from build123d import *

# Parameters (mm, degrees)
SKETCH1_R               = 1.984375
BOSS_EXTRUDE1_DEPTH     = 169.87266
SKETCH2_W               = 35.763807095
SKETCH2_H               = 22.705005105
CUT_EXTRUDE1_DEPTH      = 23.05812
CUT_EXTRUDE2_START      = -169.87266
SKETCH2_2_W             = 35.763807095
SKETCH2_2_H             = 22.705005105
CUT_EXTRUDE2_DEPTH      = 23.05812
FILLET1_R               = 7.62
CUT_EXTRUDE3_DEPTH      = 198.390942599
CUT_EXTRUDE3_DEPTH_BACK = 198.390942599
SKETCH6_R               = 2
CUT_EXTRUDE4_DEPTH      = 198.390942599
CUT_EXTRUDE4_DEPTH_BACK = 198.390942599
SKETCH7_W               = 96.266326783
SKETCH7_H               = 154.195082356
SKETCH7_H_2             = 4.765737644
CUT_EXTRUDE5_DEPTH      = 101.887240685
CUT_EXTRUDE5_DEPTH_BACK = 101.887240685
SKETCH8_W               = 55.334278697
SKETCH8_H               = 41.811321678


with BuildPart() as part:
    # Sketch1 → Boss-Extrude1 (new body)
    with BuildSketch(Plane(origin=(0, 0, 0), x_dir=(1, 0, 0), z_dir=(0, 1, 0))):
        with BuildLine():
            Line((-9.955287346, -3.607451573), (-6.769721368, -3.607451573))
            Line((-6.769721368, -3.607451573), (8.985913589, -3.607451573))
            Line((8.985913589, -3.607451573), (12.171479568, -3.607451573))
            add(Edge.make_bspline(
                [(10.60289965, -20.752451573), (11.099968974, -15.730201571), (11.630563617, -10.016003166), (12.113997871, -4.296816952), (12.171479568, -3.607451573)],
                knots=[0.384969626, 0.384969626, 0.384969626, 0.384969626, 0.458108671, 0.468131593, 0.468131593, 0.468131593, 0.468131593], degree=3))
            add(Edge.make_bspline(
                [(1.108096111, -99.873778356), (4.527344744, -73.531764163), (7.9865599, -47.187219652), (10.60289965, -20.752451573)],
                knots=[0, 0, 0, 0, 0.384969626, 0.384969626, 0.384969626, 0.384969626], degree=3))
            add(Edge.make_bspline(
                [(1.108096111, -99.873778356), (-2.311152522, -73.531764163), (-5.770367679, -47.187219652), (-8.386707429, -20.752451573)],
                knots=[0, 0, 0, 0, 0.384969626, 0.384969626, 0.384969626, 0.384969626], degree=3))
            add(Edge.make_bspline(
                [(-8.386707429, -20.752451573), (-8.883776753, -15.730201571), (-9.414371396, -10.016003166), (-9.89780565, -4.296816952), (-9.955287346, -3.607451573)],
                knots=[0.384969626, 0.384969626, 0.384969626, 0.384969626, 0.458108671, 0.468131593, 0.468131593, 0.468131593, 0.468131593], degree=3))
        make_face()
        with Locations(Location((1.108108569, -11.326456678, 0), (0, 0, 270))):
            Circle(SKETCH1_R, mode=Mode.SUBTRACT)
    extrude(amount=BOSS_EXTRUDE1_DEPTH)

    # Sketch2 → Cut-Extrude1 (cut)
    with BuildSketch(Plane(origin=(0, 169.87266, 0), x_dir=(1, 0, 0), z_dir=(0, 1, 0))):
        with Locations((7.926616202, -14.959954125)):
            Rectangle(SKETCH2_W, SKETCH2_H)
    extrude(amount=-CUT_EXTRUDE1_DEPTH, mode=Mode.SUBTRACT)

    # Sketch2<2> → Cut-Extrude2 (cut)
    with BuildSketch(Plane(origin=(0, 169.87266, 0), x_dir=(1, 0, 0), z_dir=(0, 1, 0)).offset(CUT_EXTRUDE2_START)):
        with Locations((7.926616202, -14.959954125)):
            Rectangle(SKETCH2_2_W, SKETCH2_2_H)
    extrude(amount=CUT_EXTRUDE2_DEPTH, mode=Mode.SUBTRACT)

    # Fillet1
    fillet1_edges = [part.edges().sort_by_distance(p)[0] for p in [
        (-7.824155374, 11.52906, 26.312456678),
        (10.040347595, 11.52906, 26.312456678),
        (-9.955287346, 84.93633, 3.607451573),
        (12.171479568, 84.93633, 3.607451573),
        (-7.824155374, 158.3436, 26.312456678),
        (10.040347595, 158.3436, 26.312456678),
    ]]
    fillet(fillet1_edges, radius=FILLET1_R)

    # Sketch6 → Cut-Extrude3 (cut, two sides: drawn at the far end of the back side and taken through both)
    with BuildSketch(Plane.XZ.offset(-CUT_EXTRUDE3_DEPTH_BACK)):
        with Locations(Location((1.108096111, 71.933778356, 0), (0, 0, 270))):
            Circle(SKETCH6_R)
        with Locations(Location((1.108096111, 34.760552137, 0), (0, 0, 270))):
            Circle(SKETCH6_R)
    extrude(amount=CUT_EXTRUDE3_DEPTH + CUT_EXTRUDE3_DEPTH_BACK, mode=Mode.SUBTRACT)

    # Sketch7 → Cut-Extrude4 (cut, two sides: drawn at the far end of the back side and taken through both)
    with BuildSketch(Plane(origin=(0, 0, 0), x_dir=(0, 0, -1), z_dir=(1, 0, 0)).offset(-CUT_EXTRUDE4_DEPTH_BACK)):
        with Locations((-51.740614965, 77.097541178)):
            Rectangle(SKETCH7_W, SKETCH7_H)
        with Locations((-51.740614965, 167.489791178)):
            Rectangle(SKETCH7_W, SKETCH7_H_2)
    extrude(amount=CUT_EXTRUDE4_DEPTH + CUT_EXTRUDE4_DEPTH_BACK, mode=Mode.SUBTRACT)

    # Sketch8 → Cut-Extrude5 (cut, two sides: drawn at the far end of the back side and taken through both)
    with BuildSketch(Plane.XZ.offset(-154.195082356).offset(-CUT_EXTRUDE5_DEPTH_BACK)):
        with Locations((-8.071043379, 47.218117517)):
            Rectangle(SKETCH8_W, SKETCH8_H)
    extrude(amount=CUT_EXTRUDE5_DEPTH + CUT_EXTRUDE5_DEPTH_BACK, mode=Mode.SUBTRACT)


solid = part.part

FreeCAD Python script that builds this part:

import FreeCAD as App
import Part
import Sketcher

V = App.Vector
Q = App.Units.Quantity


def edges_at(feature, points):
    """Names of the edges that pass closest to the given points."""
    edges = feature.Shape.Edges
    near = lambda p: min(range(len(edges)), key=lambda i: edges[i].distToShape(Part.Vertex(*p))[0])
    return sorted({f"Edge{near(p) + 1}" for p in points})


def add_polygon(sketch, points):
    """Adds a closed chain of lines whose ends are joined by coincident constraints."""
    first, n = sketch.GeometryCount, len(points)
    for a, b in zip(points, points[1:] + points[:1]):
        sketch.addGeometry(Part.LineSegment(App.Vector(*a, 0), App.Vector(*b, 0)), False)
    for i in range(n):
        sketch.addConstraint(Sketcher.Constraint("Coincident", first + i, 2, first + (i + 1) % n, 1))

doc = App.newDocument("Part")
body = doc.addObject("PartDesign::Body", "Body")

# Sketch on XZ plane
sketch1 = body.newObject("Sketcher::SketchObject", "Sketch")
sketch1.AttachmentSupport = (doc.getObject("XZ_Plane"), [""])
sketch1.MapMode = "FlatFace"
sketch1.addGeometry(Part.LineSegment(V(12.17148, 3.607452, 0), V(-9.955287, 3.607452, 0)), False)
sketch1.addGeometry(Part.BSplineCurve([V(-8.386707, 20.752452, 0), V(-8.883777, 15.730202, 0), V(-9.414371, 10.016003, 0), V(-9.897806, 4.296817, 0), V(-9.955287, 3.607452, 0)], [4, 1, 4], [0.384969626, 0.458108671, 0.468131593], False, 3, [1, 1, 1, 1, 1], False), False)
sketch1.addGeometry(Part.BSplineCurve([V(1.108096, 99.873778, 0), V(-2.311153, 73.531764, 0), V(-5.770368, 47.18722, 0), V(-8.386707, 20.752452, 0)], [4, 4], [0, 0.384969626], False, 3, [1, 1, 1, 1], False), False)
sketch1.addGeometry(Part.BSplineCurve([V(1.108096, 99.873778, 0), V(4.527345, 73.531764, 0), V(7.98656, 47.18722, 0), V(10.6029, 20.752452, 0)], [4, 4], [0, 0.384969626], False, 3, [1, 1, 1, 1], False), False)
sketch1.addGeometry(Part.BSplineCurve([V(10.6029, 20.752452, 0), V(11.099969, 15.730202, 0), V(11.630564, 10.016003, 0), V(12.113998, 4.296817, 0), V(12.17148, 3.607452, 0)], [4, 1, 4], [0.384969626, 0.458108671, 0.468131593], False, 3, [1, 1, 1, 1, 1], False), False)
sketch1.addGeometry(Part.Circle(V(1.108109, 11.326457, 0), V(0, 0, 1), 1.984375), False)
sketch1.addConstraint(Sketcher.Constraint("Block", 1))
sketch1.addConstraint(Sketcher.Constraint("Block", 2))
sketch1.addConstraint(Sketcher.Constraint("Block", 3))
sketch1.addConstraint(Sketcher.Constraint("Block", 4))
sketch1.addConstraint(Sketcher.Constraint("Coincident", 0, 2, 1, 2))
sketch1.addConstraint(Sketcher.Constraint("Coincident", 4, 2, 0, 1))
sketch1.addConstraint(Sketcher.Constraint("Diameter", 5, Q("0.15625 in")))
sketch1.addConstraint(Sketcher.Constraint("DistanceX", -1, 1, 5, 3, Q("1.108109 mm")))
sketch1.addConstraint(Sketcher.Constraint("DistanceY", -1, 1, 5, 3, Q("11.326457 mm")))
pad1 = body.newObject("PartDesign::Pad", "Pad")
pad1.Profile = sketch1
pad1.Length = Q("6.6879 in")
pad1.Reversed = True

# Sketch on XZ plane
sketch2 = body.newObject("Sketcher::SketchObject", "Sketch001")
sketch2.AttachmentSupport = (doc.getObject("XZ_Plane"), [""])
sketch2.MapMode = "FlatFace"
sketch2.AttachmentOffset = App.Placement(V(0, 0, -6.6879 * 25.4), App.Rotation())
add_polygon(sketch2, [(-10, 4), (-10, 26), (26, 26), (26, 4)])  # lines 0-3
sketch2.addConstraint(Sketcher.Constraint("Vertical", 0))
sketch2.addConstraint(Sketcher.Constraint("Horizontal", 1))
sketch2.addConstraint(Sketcher.Constraint("Vertical", 2))
sketch2.addConstraint(Sketcher.Constraint("Horizontal", 3))
sketch2.addConstraint(Sketcher.Constraint("DistanceX", 1, 1, 1, 2, Q("35.763807 mm")))
sketch2.addConstraint(Sketcher.Constraint("DistanceY", 0, 1, 0, 2, Q("22.705005 mm")))
sketch2.addConstraint(Sketcher.Constraint("DistanceX", -1, 1, 1, 2, Q("25.80852 mm")))
sketch2.addConstraint(Sketcher.Constraint("DistanceY", -1, 1, 2, 2, Q("3.607452 mm")))
pocket1 = body.newObject("PartDesign::Pocket", "Pocket")
pocket1.Profile = sketch2
pocket1.Length = Q("0.9078 in")
pocket1.Reversed = True

# Sketch on XZ plane
sketch3 = body.newObject("Sketcher::SketchObject", "Sketch002")
sketch3.AttachmentSupport = (doc.getObject("XZ_Plane"), [""])
sketch3.MapMode = "FlatFace"
add_polygon(sketch3, [(-10, 4), (-10, 26), (26, 26), (26, 4)])  # lines 0-3
sketch3.addConstraint(Sketcher.Constraint("Vertical", 0))
sketch3.addConstraint(Sketcher.Constraint("Horizontal", 1))
sketch3.addConstraint(Sketcher.Constraint("Vertical", 2))
sketch3.addConstraint(Sketcher.Constraint("Horizontal", 3))
sketch3.addConstraint(Sketcher.Constraint("DistanceX", 1, 1, 1, 2, Q("35.763807 mm")))
sketch3.addConstraint(Sketcher.Constraint("DistanceY", 0, 1, 0, 2, Q("22.705005 mm")))
sketch3.addConstraint(Sketcher.Constraint("DistanceX", -1, 1, 1, 2, Q("25.80852 mm")))
sketch3.addConstraint(Sketcher.Constraint("DistanceY", -1, 1, 2, 2, Q("3.607452 mm")))
pocket2 = body.newObject("PartDesign::Pocket", "Pocket001")
pocket2.Profile = sketch3
pocket2.Length = Q("0.9078 in")
doc.recompute()

fillet = body.newObject("PartDesign::Fillet", "Fillet")
fillet.Base = (pocket2, edges_at(pocket2, [
    (-7.824, 11.529, 26.312),
    (10.04, 11.529, 26.312),
    (-9.955, 84.936, 3.607),
    (12.171, 84.936, 3.607),
    (-7.824, 158.344, 26.312),
    (10.04, 158.344, 26.312),
]))
fillet.Radius = Q("0.3 in")

# Sketch on XZ plane
sketch4 = body.newObject("Sketcher::SketchObject", "Sketch003")
sketch4.AttachmentSupport = (doc.getObject("XZ_Plane"), [""])
sketch4.MapMode = "FlatFace"
sketch4.addGeometry(Part.Circle(V(1.1, 71.9, 0), V(0, 0, 1), 2), False)
sketch4.addGeometry(Part.Circle(V(1.1, 34.8, 0), V(0, 0, 1), 2), False)
sketch4.addConstraint(Sketcher.Constraint("Equal", 0, 1))
sketch4.addConstraint(Sketcher.Constraint("Vertical", 0, 3, 1, 3))
sketch4.addConstraint(Sketcher.Constraint("Diameter", 0, Q("4 mm")))
sketch4.addConstraint(Sketcher.Constraint("DistanceY", -1, 1, 0, 3, Q("71.933778 mm")))
sketch4.addConstraint(Sketcher.Constraint("DistanceX", -1, 1, 0, 3, Q("1.108096 mm")))
sketch4.addConstraint(Sketcher.Constraint("DistanceY", -1, 1, 1, 3, Q("34.760552 mm")))
pocket3 = body.newObject("PartDesign::Pocket", "Pocket002")
pocket3.Profile = sketch4
pocket3.Type = "ThroughAll"
pocket3.Midplane = True

# Sketch on YZ plane
sketch5 = body.newObject("Sketcher::SketchObject", "Sketch004")
sketch5.AttachmentSupport = (doc.getObject("YZ_Plane"), [""])
sketch5.MapMode = "FlatFace"
add_polygon(sketch5, [(154.2, 99.9), (0, 99.9), (0, 3.6), (154.2, 3.6)])  # lines 0-3
add_polygon(sketch5, [(169.9, 99.9), (165.1, 99.9), (165.1, 3.6), (169.9, 3.6)])  # lines 4-7
sketch5.addConstraint(Sketcher.Constraint("Horizontal", 0))
sketch5.addConstraint(Sketcher.Constraint("Vertical", 1))
sketch5.addConstraint(Sketcher.Constraint("Horizontal", 2))
sketch5.addConstraint(Sketcher.Constraint("Vertical", 3))
sketch5.addConstraint(Sketcher.Constraint("Horizontal", 4))
sketch5.addConstraint(Sketcher.Constraint("Vertical", 5))
sketch5.addConstraint(Sketcher.Constraint("Horizontal", 6))
sketch5.addConstraint(Sketcher.Constraint("Vertical", 7))
sketch5.addConstraint(Sketcher.Constraint("PointOnObject", 0, 2, -2))
sketch5.addConstraint(Sketcher.Constraint("Horizontal", 3, 2, 4, 2))
sketch5.addConstraint(Sketcher.Constraint("Horizontal", 2, 2, 5, 2))
sketch5.addConstraint(Sketcher.Constraint("DistanceX", -1, 1, 6, 2, Q("6.6879 in")))
sketch5.addConstraint(Sketcher.Constraint("DistanceX", 3, 2, 4, 2, Q("0.4296 in")))
sketch5.addConstraint(Sketcher.Constraint("DistanceX", 0, 2, 0, 1, Q("154.195082 mm")))
sketch5.addConstraint(Sketcher.Constraint("DistanceY", 1, 2, 1, 1, Q("96.266327 mm")))
sketch5.addConstraint(Sketcher.Constraint("DistanceY", -1, 1, 0, 2, Q("99.873778 mm")))
pocket4 = body.newObject("PartDesign::Pocket", "Pocket003")
pocket4.Profile = sketch5
pocket4.Type = "ThroughAll"
pocket4.Midplane = True

# Sketch on XZ plane
sketch6 = body.newObject("Sketcher::SketchObject", "Sketch005")
sketch6.AttachmentSupport = (doc.getObject("XZ_Plane"), [""])
sketch6.MapMode = "FlatFace"
sketch6.AttachmentOffset = App.Placement(V(0, 0, -154.195082), App.Rotation())
add_polygon(sketch6, [(-36, 68), (-36, 26), (20, 26), (20, 68)])  # lines 0-3
sketch6.addConstraint(Sketcher.Constraint("Vertical", 0))
sketch6.addConstraint(Sketcher.Constraint("Horizontal", 1))
sketch6.addConstraint(Sketcher.Constraint("Vertical", 2))
sketch6.addConstraint(Sketcher.Constraint("Horizontal", 3))
sketch6.addConstraint(Sketcher.Constraint("DistanceX", -1, 1, 1, 2, Q("0.7714998 in")))
sketch6.addConstraint(Sketcher.Constraint("DistanceX", 1, 1, 1, 2, Q("55.334279 mm")))
sketch6.addConstraint(Sketcher.Constraint("DistanceY", 0, 2, 0, 1, Q("41.811322 mm")))
sketch6.addConstraint(Sketcher.Constraint("DistanceY", -1, 1, 2, 2, Q("68.123778 mm")))
pocket5 = body.newObject("PartDesign::Pocket", "Pocket004")
pocket5.Profile = sketch6
pocket5.Type = "ThroughAll"
pocket5.Midplane = True

doc.recompute()
